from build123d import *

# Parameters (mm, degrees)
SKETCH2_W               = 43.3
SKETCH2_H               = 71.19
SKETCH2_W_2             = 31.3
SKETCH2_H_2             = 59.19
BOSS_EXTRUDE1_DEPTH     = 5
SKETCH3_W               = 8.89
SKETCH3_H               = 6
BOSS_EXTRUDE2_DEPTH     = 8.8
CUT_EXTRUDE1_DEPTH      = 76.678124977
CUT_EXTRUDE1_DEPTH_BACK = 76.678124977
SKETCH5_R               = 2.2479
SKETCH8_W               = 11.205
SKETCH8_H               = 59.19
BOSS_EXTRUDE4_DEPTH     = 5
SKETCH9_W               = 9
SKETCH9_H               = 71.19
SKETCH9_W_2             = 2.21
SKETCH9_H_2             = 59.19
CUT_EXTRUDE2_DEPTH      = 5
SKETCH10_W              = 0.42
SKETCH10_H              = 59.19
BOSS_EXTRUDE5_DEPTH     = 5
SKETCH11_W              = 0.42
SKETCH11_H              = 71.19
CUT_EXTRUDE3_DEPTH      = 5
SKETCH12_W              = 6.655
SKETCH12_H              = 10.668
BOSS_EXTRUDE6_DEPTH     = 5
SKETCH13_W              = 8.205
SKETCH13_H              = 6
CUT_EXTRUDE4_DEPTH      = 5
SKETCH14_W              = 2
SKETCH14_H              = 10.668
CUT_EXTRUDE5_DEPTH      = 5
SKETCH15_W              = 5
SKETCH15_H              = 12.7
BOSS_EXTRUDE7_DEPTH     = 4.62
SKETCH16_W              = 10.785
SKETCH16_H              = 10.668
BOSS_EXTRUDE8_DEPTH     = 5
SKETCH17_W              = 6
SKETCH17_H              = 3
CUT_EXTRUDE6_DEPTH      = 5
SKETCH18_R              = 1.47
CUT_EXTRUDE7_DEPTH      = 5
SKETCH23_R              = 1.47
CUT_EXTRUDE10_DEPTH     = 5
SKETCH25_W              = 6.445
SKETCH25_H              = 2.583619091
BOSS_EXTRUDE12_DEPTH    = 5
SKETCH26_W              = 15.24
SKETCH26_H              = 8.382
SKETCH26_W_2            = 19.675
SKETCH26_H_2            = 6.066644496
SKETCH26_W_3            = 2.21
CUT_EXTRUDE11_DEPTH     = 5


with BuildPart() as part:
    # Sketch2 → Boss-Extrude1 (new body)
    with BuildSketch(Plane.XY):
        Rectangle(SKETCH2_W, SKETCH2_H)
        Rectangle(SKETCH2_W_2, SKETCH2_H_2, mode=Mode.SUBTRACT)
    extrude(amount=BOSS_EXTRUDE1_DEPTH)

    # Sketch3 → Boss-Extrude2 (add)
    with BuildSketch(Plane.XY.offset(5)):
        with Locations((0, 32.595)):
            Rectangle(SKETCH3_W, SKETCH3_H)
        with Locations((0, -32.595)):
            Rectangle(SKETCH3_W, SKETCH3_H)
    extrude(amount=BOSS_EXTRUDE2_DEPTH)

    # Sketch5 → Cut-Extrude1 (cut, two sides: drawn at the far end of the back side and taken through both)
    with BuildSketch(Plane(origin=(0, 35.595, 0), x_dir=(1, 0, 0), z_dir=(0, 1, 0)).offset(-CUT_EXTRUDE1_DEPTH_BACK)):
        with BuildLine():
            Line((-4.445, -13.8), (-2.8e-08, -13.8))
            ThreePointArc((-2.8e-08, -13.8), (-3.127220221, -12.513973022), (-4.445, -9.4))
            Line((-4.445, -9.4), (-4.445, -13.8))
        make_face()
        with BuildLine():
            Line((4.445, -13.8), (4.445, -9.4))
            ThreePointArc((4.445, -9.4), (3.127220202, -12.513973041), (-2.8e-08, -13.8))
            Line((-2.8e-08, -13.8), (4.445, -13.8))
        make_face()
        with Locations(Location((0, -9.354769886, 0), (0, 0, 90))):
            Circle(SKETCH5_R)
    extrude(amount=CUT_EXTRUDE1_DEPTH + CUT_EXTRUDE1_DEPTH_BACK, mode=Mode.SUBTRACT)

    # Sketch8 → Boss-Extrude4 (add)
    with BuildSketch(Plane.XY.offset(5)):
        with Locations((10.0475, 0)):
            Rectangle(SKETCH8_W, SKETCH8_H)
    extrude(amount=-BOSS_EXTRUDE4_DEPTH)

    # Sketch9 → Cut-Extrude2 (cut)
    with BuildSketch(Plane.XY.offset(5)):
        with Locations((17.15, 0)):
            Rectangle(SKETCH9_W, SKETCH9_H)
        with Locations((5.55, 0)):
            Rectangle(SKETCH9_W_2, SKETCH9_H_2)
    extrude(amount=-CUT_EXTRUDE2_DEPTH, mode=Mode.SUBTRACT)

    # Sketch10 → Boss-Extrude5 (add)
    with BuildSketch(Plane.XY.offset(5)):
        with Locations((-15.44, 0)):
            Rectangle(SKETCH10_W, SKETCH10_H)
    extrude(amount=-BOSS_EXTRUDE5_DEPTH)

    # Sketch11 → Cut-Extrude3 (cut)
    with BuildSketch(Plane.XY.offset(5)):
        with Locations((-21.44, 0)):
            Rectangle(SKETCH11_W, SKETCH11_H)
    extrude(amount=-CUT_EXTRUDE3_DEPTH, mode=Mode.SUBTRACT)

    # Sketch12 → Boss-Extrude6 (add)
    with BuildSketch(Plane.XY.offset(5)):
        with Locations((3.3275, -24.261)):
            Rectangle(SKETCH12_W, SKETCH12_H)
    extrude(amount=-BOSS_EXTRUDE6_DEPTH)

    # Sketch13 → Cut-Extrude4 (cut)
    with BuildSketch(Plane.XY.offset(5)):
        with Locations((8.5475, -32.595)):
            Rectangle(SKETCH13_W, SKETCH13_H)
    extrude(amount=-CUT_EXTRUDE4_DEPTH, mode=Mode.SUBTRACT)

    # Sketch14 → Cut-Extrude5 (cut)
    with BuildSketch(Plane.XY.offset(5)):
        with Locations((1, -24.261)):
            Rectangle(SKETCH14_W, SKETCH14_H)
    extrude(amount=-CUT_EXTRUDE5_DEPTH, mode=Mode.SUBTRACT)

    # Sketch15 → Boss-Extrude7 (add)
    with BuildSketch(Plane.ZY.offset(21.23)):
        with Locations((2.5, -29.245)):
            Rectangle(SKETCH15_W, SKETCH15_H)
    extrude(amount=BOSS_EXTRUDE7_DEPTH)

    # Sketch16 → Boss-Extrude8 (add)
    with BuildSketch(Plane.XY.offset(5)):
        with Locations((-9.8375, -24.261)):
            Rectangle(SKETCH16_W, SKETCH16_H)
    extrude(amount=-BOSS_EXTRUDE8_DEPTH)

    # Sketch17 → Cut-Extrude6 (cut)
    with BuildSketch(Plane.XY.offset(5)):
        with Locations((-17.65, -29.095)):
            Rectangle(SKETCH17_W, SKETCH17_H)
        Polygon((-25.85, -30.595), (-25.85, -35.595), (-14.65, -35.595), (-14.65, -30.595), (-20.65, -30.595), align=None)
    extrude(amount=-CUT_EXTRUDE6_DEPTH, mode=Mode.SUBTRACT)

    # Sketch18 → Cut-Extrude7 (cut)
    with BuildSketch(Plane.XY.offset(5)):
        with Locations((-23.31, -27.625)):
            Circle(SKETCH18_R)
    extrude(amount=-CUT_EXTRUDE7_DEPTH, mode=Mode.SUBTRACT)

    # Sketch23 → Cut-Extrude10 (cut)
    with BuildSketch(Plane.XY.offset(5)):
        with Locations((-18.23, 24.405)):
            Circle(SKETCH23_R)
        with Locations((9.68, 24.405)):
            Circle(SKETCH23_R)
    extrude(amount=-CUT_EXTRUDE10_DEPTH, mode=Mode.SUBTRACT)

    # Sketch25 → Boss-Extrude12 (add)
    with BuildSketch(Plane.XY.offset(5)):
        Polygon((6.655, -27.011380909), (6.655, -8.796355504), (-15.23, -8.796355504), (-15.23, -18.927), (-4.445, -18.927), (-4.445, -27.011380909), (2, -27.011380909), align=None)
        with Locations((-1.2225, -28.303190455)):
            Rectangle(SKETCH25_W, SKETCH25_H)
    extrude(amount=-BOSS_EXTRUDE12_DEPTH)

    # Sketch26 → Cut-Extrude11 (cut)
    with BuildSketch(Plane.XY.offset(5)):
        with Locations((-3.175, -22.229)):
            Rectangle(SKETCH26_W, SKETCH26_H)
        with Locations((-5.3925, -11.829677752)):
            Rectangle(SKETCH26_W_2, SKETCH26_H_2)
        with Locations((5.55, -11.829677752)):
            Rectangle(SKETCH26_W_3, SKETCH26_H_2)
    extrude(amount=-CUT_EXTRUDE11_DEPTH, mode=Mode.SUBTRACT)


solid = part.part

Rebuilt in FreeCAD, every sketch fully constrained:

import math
import FreeCAD as App
import Part
import Sketcher
from FreeCAD import Vector

doc = App.newDocument("Part")
body = doc.addObject("PartDesign::Body", "Body")

# Sketch on XY plane
sketch1 = doc.addObject("Sketcher::SketchObject", "Sketch")
body.addObject(sketch1)
sketch1.AttachmentSupport = (doc.XY_Plane, [""])
sketch1.MapMode = "FlatFace"
sketch1.addGeometry(Part.LineSegment(Vector(-21.65, 35.595, 0), Vector(-21.65, -35.595, 0)), False)
sketch1.addGeometry(Part.LineSegment(Vector(-21.65, -35.595, 0), Vector(21.65, -35.595, 0)), False)
sketch1.addGeometry(Part.LineSegment(Vector(21.65, -35.595, 0), Vector(21.65, 35.595, 0)), False)
sketch1.addGeometry(Part.LineSegment(Vector(21.65, 35.595, 0), Vector(-21.65, 35.595, 0)), False)
sketch1.addGeometry(Part.LineSegment(Vector(15.65, -29.595, 0), Vector(-15.65, -29.595, 0)), False)
sketch1.addGeometry(Part.LineSegment(Vector(-15.65, -29.595, 0), Vector(-15.65, 29.595, 0)), False)
sketch1.addGeometry(Part.LineSegment(Vector(-15.65, 29.595, 0), Vector(15.65, 29.595, 0)), False)
sketch1.addGeometry(Part.LineSegment(Vector(15.65, 29.595, 0), Vector(15.65, -29.595, 0)), False)
sketch1.addConstraint(Sketcher.Constraint("Coincident", 0, 2, 1, 1))
sketch1.addConstraint(Sketcher.Constraint("Coincident", 1, 2, 2, 1))
sketch1.addConstraint(Sketcher.Constraint("Coincident", 2, 2, 3, 1))
sketch1.addConstraint(Sketcher.Constraint("Coincident", 3, 2, 0, 1))
sketch1.addConstraint(Sketcher.Constraint("Coincident", 4, 2, 5, 1))
sketch1.addConstraint(Sketcher.Constraint("Coincident", 5, 2, 6, 1))
sketch1.addConstraint(Sketcher.Constraint("Coincident", 6, 2, 7, 1))
sketch1.addConstraint(Sketcher.Constraint("Coincident", 7, 2, 4, 1))
sketch1.addConstraint(Sketcher.Constraint("Vertical", 0))
sketch1.addConstraint(Sketcher.Constraint("Horizontal", 1))
sketch1.addConstraint(Sketcher.Constraint("Vertical", 2))
sketch1.addConstraint(Sketcher.Constraint("Horizontal", 3))
sketch1.addConstraint(Sketcher.Constraint("Horizontal", 4))
sketch1.addConstraint(Sketcher.Constraint("Vertical", 5))
sketch1.addConstraint(Sketcher.Constraint("Horizontal", 6))
sketch1.addConstraint(Sketcher.Constraint("Vertical", 7))
sketch1.addConstraint(Sketcher.Constraint("Symmetric", 0, 2, 2, 2, -1, 1))
sketch1.addConstraint(Sketcher.Constraint("Symmetric", 4, 2, 6, 2, -1, 1))
sketch1.addConstraint(Sketcher.Constraint("DistanceX", 1, 1, 1, 2, 43.3))
sketch1.addConstraint(Sketcher.Constraint("DistanceX", 4, 2, 4, 1, 31.3))
sketch1.addConstraint(Sketcher.Constraint("DistanceY", 0, 2, 4, 2, 6.0))
sketch1.addConstraint(Sketcher.Constraint("DistanceY", 0, 2, 0, 1, 71.19))
pad1 = doc.addObject("PartDesign::Pad", "Pad")
body.addObject(pad1)
pad1.Profile = sketch1
pad1.Length = 5

# Sketch on XY plane
sketch2 = doc.addObject("Sketcher::SketchObject", "Sketch001")
body.addObject(sketch2)
sketch2.AttachmentSupport = (doc.XY_Plane, [""])
sketch2.MapMode = "FlatFace"
sketch2.AttachmentOffset = App.Placement(Vector(0, 0, 5), App.Rotation())
sketch2.addGeometry(Part.LineSegment(Vector(-4.445, 35.595, 0), Vector(-4.445, 29.595, 0)), False)
sketch2.addGeometry(Part.LineSegment(Vector(-4.445, 29.595, 0), Vector(4.445, 29.595, 0)), False)
sketch2.addGeometry(Part.LineSegment(Vector(4.445, 29.595, 0), Vector(4.445, 35.595, 0)), False)
sketch2.addGeometry(Part.LineSegment(Vector(4.445, 35.595, 0), Vector(-4.445, 35.595, 0)), False)
sketch2.addGeometry(Part.LineSegment(Vector(-4.445, -29.595, 0), Vector(-4.445, -35.595, 0)), False)
sketch2.addGeometry(Part.LineSegment(Vector(-4.445, -35.595, 0), Vector(4.445, -35.595, 0)), False)
sketch2.addGeometry(Part.LineSegment(Vector(4.445, -35.595, 0), Vector(4.445, -29.595, 0)), False)
sketch2.addGeometry(Part.LineSegment(Vector(4.445, -29.595, 0), Vector(-4.445, -29.595, 0)), False)
sketch2.addConstraint(Sketcher.Constraint("Coincident", 0, 2, 1, 1))
sketch2.addConstraint(Sketcher.Constraint("Coincident", 1, 2, 2, 1))
sketch2.addConstraint(Sketcher.Constraint("Coincident", 2, 2, 3, 1))
sketch2.addConstraint(Sketcher.Constraint("Coincident", 3, 2, 0, 1))
sketch2.addConstraint(Sketcher.Constraint("Coincident", 4, 2, 5, 1))
sketch2.addConstraint(Sketcher.Constraint("Coincident", 5, 2, 6, 1))
sketch2.addConstraint(Sketcher.Constraint("Coincident", 6, 2, 7, 1))
sketch2.addConstraint(Sketcher.Constraint("Coincident", 7, 2, 4, 1))
sketch2.addConstraint(Sketcher.Constraint("Vertical", 0))
sketch2.addConstraint(Sketcher.Constraint("Horizontal", 1))
sketch2.addConstraint(Sketcher.Constraint("Vertical", 2))
sketch2.addConstraint(Sketcher.Constraint("Horizontal", 3))
sketch2.addConstraint(Sketcher.Constraint("Vertical", 4))
sketch2.addConstraint(Sketcher.Constraint("Horizontal", 5))
sketch2.addConstraint(Sketcher.Constraint("Vertical", 6))
sketch2.addConstraint(Sketcher.Constraint("Horizontal", 7))
sketch2.addConstraint(Sketcher.Constraint("Symmetric", 2, 2, 4, 2, -1, 1))
sketch2.addConstraint(Sketcher.Constraint("Symmetric", 0, 2, 6, 2, -1, 1))
sketch2.addConstraint(Sketcher.Constraint("Vertical", 3, 2, 4, 2))
sketch2.addConstraint(Sketcher.Constraint("DistanceY", 0, 2, 0, 1, 6.0))
sketch2.addConstraint(Sketcher.Constraint("DistanceX", 1, 1, 1, 2, 8.89))
sketch2.addConstraint(Sketcher.Constraint("DistanceY", 4, 2, 0, 2, 65.19))
pad2 = doc.addObject("PartDesign::Pad", "Pad001")
body.addObject(pad2)
pad2.Profile = sketch2
pad2.Length = 8.8

# Sketch on XZ plane
sketch3 = doc.addObject("Sketcher::SketchObject", "Sketch002")
body.addObject(sketch3)
sketch3.AttachmentSupport = (doc.XZ_Plane, [""])
sketch3.MapMode = "FlatFace"
sketch3.AttachmentOffset = App.Placement(Vector(0, 0, -35.595), App.Rotation())
sketch3.addGeometry(Part.LineSegment(Vector(-4.445, 13.8, 0), Vector(0, 13.8, 0)), False)
sketch3.addGeometry(Part.ArcOfCircle(Part.Circle(Vector(0, 9.35477, 0), Vector(0, 0, 1), 4.44523), math.radians(90), math.radians(179.417007)), False)
sketch3.addGeometry(Part.LineSegment(Vector(-4.445, 9.4, 0), Vector(-4.445, 13.8, 0)), False)
sketch3.addGeometry(Part.LineSegment(Vector(4.445, 13.8, 0), Vector(4.445, 9.4, 0)), False)
sketch3.addGeometry(Part.ArcOfCircle(Part.Circle(Vector(0, 9.35477, 0), Vector(0, 0, 1), 4.44523), math.radians(0.582993), math.radians(90)), False)
sketch3.addGeometry(Part.LineSegment(Vector(0, 13.8, 0), Vector(4.445, 13.8, 0)), False)
sketch3.addGeometry(Part.Circle(Vector(0, 9.35477, 0), Vector(0, 0, 1), 2.2479), False)
sketch3.addConstraint(Sketcher.Constraint("Tangent", 0, 2, 1, 1))
sketch3.addConstraint(Sketcher.Constraint("Coincident", 1, 2, 2, 1))
sketch3.addConstraint(Sketcher.Constraint("Coincident", 2, 2, 0, 1))
sketch3.addConstraint(Sketcher.Constraint("Coincident", 3, 2, 4, 1))
sketch3.addConstraint(Sketcher.Constraint("Tangent", 4, 2, 5, 1))
sketch3.addConstraint(Sketcher.Constraint("Coincident", 5, 2, 3, 1))
sketch3.addConstraint(Sketcher.Constraint("Horizontal", 0))
sketch3.addConstraint(Sketcher.Constraint("Vertical", 2))
sketch3.addConstraint(Sketcher.Constraint("Vertical", 3))
sketch3.addConstraint(Sketcher.Constraint("Horizontal", 5))
sketch3.addConstraint(Sketcher.Constraint("Coincident", 4, 3, 1, 3))
sketch3.addConstraint(Sketcher.Constraint("Coincident", 6, 3, 1, 3))
sketch3.addConstraint(Sketcher.Constraint("Equal", 1, 4))
sketch3.addConstraint(Sketcher.Constraint("Symmetric", 1, 2, 3, 2, -2))
sketch3.addConstraint(Sketcher.Constraint("DistanceY", 2, 1, 2, 2, 4.4))
sketch3.addConstraint(Sketcher.Constraint("Diameter", 6, 4.4958))
sketch3.addConstraint(Sketcher.Constraint("DistanceY", -1, 1, 0, 2, 13.8))
sketch3.addConstraint(Sketcher.Constraint("DistanceX", 0, 1, 0, 2, 4.445))
pocket1 = doc.addObject("PartDesign::Pocket", "Pocket")
body.addObject(pocket1)
pocket1.Profile = sketch3
pocket1.Type = "ThroughAll"
pocket1.Midplane = True

# Sketch on XY plane
sketch4 = doc.addObject("Sketcher::SketchObject", "Sketch003")
body.addObject(sketch4)
sketch4.AttachmentSupport = (doc.XY_Plane, [""])
sketch4.MapMode = "FlatFace"
sketch4.AttachmentOffset = App.Placement(Vector(0, 0, 5), App.Rotation())
sketch4.addGeometry(Part.LineSegment(Vector(4.445, 29.595, 0), Vector(4.445, -29.595, 0)), False)
sketch4.addGeometry(Part.LineSegment(Vector(4.445, -29.595, 0), Vector(15.65, -29.595, 0)), False)
sketch4.addGeometry(Part.LineSegment(Vector(15.65, -29.595, 0), Vector(15.65, 29.595, 0)), False)
sketch4.addGeometry(Part.LineSegment(Vector(15.65, 29.595, 0), Vector(4.445, 29.595, 0)), False)
sketch4.addConstraint(Sketcher.Constraint("Coincident", 0, 2, 1, 1))
sketch4.addConstraint(Sketcher.Constraint("Coincident", 1, 2, 2, 1))
sketch4.addConstraint(Sketcher.Constraint("Coincident", 2, 2, 3, 1))
sketch4.addConstraint(Sketcher.Constraint("Coincident", 3, 2, 0, 1))
sketch4.addConstraint(Sketcher.Constraint("Vertical", 0))
sketch4.addConstraint(Sketcher.Constraint("Horizontal", 1))
sketch4.addConstraint(Sketcher.Constraint("Vertical", 2))
sketch4.addConstraint(Sketcher.Constraint("Horizontal", 3))
sketch4.addConstraint(Sketcher.Constraint("DistanceY", 0, 2, 0, 1, 59.19))
sketch4.addConstraint(Sketcher.Constraint("DistanceX", 1, 1, 1, 2, 11.205))
sketch4.addConstraint(Sketcher.Constraint("DistanceX", -1, 1, 1, 2, 15.65))
sketch4.addConstraint(Sketcher.Constraint("DistanceY", 0, 2, -1, 1, 29.595))
pad3 = doc.addObject("PartDesign::Pad", "Pad002")
body.addObject(pad3)
pad3.Profile = sketch4
pad3.Length = 5
pad3.Reversed = True

# Sketch on XY plane
sketch5 = doc.addObject("Sketcher::SketchObject", "Sketch004")
body.addObject(sketch5)
sketch5.AttachmentSupport = (doc.XY_Plane, [""])
sketch5.MapMode = "FlatFace"
sketch5.AttachmentOffset = App.Placement(Vector(0, 0, 5), App.Rotation())
sketch5.addGeometry(Part.LineSegment(Vector(12.65, 35.595, 0), Vector(12.65, -35.595, 0)), False)
sketch5.addGeometry(Part.LineSegment(Vector(12.65, -35.595, 0), Vector(21.65, -35.595, 0)), False)
sketch5.addGeometry(Part.LineSegment(Vector(21.65, -35.595, 0), Vector(21.65, 35.595, 0)), False)
sketch5.addGeometry(Part.LineSegment(Vector(21.65, 35.595, 0), Vector(12.65, 35.595, 0)), False)
sketch5.addGeometry(Part.LineSegment(Vector(4.445, 29.595, 0), Vector(4.445, -29.595, 0)), False)
sketch5.addGeometry(Part.LineSegment(Vector(4.445, -29.595, 0), Vector(6.655, -29.595, 0)), False)
sketch5.addGeometry(Part.LineSegment(Vector(6.655, -29.595, 0), Vector(6.655, 29.595, 0)), False)
sketch5.addGeometry(Part.LineSegment(Vector(6.655, 29.595, 0), Vector(4.445, 29.595, 0)), False)
sketch5.addConstraint(Sketcher.Constraint("Coincident", 0, 2, 1, 1))
sketch5.addConstraint(Sketcher.Constraint("Coincident", 1, 2, 2, 1))
sketch5.addConstraint(Sketcher.Constraint("Coincident", 2, 2, 3, 1))
sketch5.addConstraint(Sketcher.Constraint("Coincident", 3, 2, 0, 1))
sketch5.addConstraint(Sketcher.Constraint("Coincident", 4, 2, 5, 1))
sketch5.addConstraint(Sketcher.Constraint("Coincident", 5, 2, 6, 1))
sketch5.addConstraint(Sketcher.Constraint("Coincident", 6, 2, 7, 1))
sketch5.addConstraint(Sketcher.Constraint("Coincident", 7, 2, 4, 1))
sketch5.addConstraint(Sketcher.Constraint("Vertical", 0))
sketch5.addConstraint(Sketcher.Constraint("Horizontal", 1))
sketch5.addConstraint(Sketcher.Constraint("Vertical", 2))
sketch5.addConstraint(Sketcher.Constraint("Horizontal", 3))
sketch5.addConstraint(Sketcher.Constraint("Vertical", 4))
sketch5.addConstraint(Sketcher.Constraint("Horizontal", 5))
sketch5.addConstraint(Sketcher.Constraint("Vertical", 6))
sketch5.addConstraint(Sketcher.Constraint("Horizontal", 7))
sketch5.addConstraint(Sketcher.Constraint("DistanceX", 1, 1, 1, 2, 9.0))
sketch5.addConstraint(Sketcher.Constraint("DistanceY", 0, 2, 4, 2, 6.0))
sketch5.addConstraint(Sketcher.Constraint("DistanceY", 6, 2, 3, 2, 6.0))
sketch5.addConstraint(Sketcher.Constraint("DistanceX", 5, 1, 5, 2, 2.21))
sketch5.addConstraint(Sketcher.Constraint("DistanceY", 0, 2, 0, 1, 71.19))
sketch5.addConstraint(Sketcher.Constraint("DistanceX", -1, 1, 0, 2, 12.65))
sketch5.addConstraint(Sketcher.Constraint("DistanceY", 0, 2, -1, 1, 35.595))
sketch5.addConstraint(Sketcher.Constraint("DistanceX", -1, 1, 4, 2, 4.445))
pocket2 = doc.addObject("PartDesign::Pocket", "Pocket001")
body.addObject(pocket2)
pocket2.Profile = sketch5
pocket2.Length = 5

# Sketch on XY plane
sketch6 = doc.addObject("Sketcher::SketchObject", "Sketch005")
body.addObject(sketch6)
sketch6.AttachmentSupport = (doc.XY_Plane, [""])
sketch6.MapMode = "FlatFace"
sketch6.AttachmentOffset = App.Placement(Vector(0, 0, 5), App.Rotation())
sketch6.addGeometry(Part.LineSegment(Vector(-15.65, 29.595, 0), Vector(-15.65, -29.595, 0)), False)
sketch6.addGeometry(Part.LineSegment(Vector(-15.65, -29.595, 0), Vector(-15.23, -29.595, 0)), False)
sketch6.addGeometry(Part.LineSegment(Vector(-15.23, -29.595, 0), Vector(-15.23, 29.595, 0)), False)
sketch6.addGeometry(Part.LineSegment(Vector(-15.23, 29.595, 0), Vector(-15.65, 29.595, 0)), False)
sketch6.addConstraint(Sketcher.Constraint("Coincident", 0, 2, 1, 1))
sketch6.addConstraint(Sketcher.Constraint("Coincident", 1, 2, 2, 1))
sketch6.addConstraint(Sketcher.Constraint("Coincident", 2, 2, 3, 1))
sketch6.addConstraint(Sketcher.Constraint("Coincident", 3, 2, 0, 1))
sketch6.addConstraint(Sketcher.Constraint("Vertical", 0))
sketch6.addConstraint(Sketcher.Constraint("Horizontal", 1))
sketch6.addConstraint(Sketcher.Constraint("Vertical", 2))
sketch6.addConstraint(Sketcher.Constraint("Horizontal", 3))
sketch6.addConstraint(Sketcher.Constraint("DistanceX", 1, 1, 1, 2, 0.42))
sketch6.addConstraint(Sketcher.Constraint("DistanceY", 0, 2, 0, 1, 59.19))
sketch6.addConstraint(Sketcher.Constraint("DistanceX", 0, 2, -1, 1, 15.65))
sketch6.addConstraint(Sketcher.Constraint("DistanceY", 0, 2, -1, 1, 29.595))
pad4 = doc.addObject("PartDesign::Pad", "Pad003")
body.addObject(pad4)
pad4.Profile = sketch6
pad4.Length = 5
pad4.Reversed = True

# Sketch on XY plane
sketch7 = doc.addObject("Sketcher::SketchObject", "Sketch006")
body.addObject(sketch7)
sketch7.AttachmentSupport = (doc.XY_Plane, [""])
sketch7.MapMode = "FlatFace"
sketch7.AttachmentOffset = App.Placement(Vector(0, 0, 5), App.Rotation())
sketch7.addGeometry(Part.LineSegment(Vector(-21.65, 35.595, 0), Vector(-21.65, -35.595, 0)), False)
sketch7.addGeometry(Part.LineSegment(Vector(-21.65, -35.595, 0), Vector(-21.23, -35.595, 0)), False)
sketch7.addGeometry(Part.LineSegment(Vector(-21.23, -35.595, 0), Vector(-21.23, 35.595, 0)), False)
sketch7.addGeometry(Part.LineSegment(Vector(-21.23, 35.595, 0), Vector(-21.65, 35.595, 0)), False)
sketch7.addConstraint(Sketcher.Constraint("Coincident", 0, 2, 1, 1))
sketch7.addConstraint(Sketcher.Constraint("Coincident", 1, 2, 2, 1))
sketch7.addConstraint(Sketcher.Constraint("Coincident", 2, 2, 3, 1))
sketch7.addConstraint(Sketcher.Constraint("Coincident", 3, 2, 0, 1))
sketch7.addConstraint(Sketcher.Constraint("Vertical", 0))
sketch7.addConstraint(Sketcher.Constraint("Horizontal", 1))
sketch7.addConstraint(Sketcher.Constraint("Vertical", 2))
sketch7.addConstraint(Sketcher.Constraint("Horizontal", 3))
sketch7.addConstraint(Sketcher.Constraint("DistanceX", 1, 1, 1, 2, 0.42))
sketch7.addConstraint(Sketcher.Constraint("DistanceY", 0, 2, 0, 1, 71.19))
sketch7.addConstraint(Sketcher.Constraint("DistanceX", 0, 2, -1, 1, 21.65))
sketch7.addConstraint(Sketcher.Constraint("DistanceY", 0, 2, -1, 1, 35.595))
pocket3 = doc.addObject("PartDesign::Pocket", "Pocket002")
body.addObject(pocket3)
pocket3.Profile = sketch7
pocket3.Length = 5

# Sketch on XY plane
sketch8 = doc.addObject("Sketcher::SketchObject", "Sketch007")
body.addObject(sketch8)
sketch8.AttachmentSupport = (doc.XY_Plane, [""])
sketch8.MapMode = "FlatFace"
sketch8.AttachmentOffset = App.Placement(Vector(0, 0, 5), App.Rotation())
sketch8.addGeometry(Part.LineSegment(Vector(0, -18.927, 0), Vector(0, -29.595, 0)), False)
sketch8.addGeometry(Part.LineSegment(Vector(0, -29.595, 0), Vector(6.655, -29.595, 0)), False)
sketch8.addGeometry(Part.LineSegment(Vector(6.655, -29.595, 0), Vector(6.655, -18.927, 0)), False)
sketch8.addGeometry(Part.LineSegment(Vector(6.655, -18.927, 0), Vector(0, -18.927, 0)), False)
sketch8.addConstraint(Sketcher.Constraint("Coincident", 0, 2, 1, 1))
sketch8.addConstraint(Sketcher.Constraint("Coincident", 1, 2, 2, 1))
sketch8.addConstraint(Sketcher.Constraint("Coincident", 2, 2, 3, 1))
sketch8.addConstraint(Sketcher.Constraint("Coincident", 3, 2, 0, 1))
sketch8.addConstraint(Sketcher.Constraint("Vertical", 0))
sketch8.addConstraint(Sketcher.Constraint("Horizontal", 1))
sketch8.addConstraint(Sketcher.Constraint("Vertical", 2))
sketch8.addConstraint(Sketcher.Constraint("Horizontal", 3))
sketch8.addConstraint(Sketcher.Constraint("PointOnObject", 0, 2, -2))
sketch8.addConstraint(Sketcher.Constraint("DistanceX", 1, 1, 1, 2, 6.655))
sketch8.addConstraint(Sketcher.Constraint("DistanceY", 0, 2, 0, 1, 10.668))
sketch8.addConstraint(Sketcher.Constraint("DistanceY", 0, 2, -1, 1, 29.595))
pad5 = doc.addObject("PartDesign::Pad", "Pad004")
body.addObject(pad5)
pad5.Profile = sketch8
pad5.Length = 5
pad5.Reversed = True

# Sketch on XY plane
sketch9 = doc.addObject("Sketcher::SketchObject", "Sketch008")
body.addObject(sketch9)
sketch9.AttachmentSupport = (doc.XY_Plane, [""])
sketch9.MapMode = "FlatFace"
sketch9.AttachmentOffset = App.Placement(Vector(0, 0, 5), App.Rotation())
sketch9.addGeometry(Part.LineSegment(Vector(4.445, -29.595, 0), Vector(4.445, -35.595, 0)), False)
sketch9.addGeometry(Part.LineSegment(Vector(4.445, -35.595, 0), Vector(12.65, -35.595, 0)), False)
sketch9.addGeometry(Part.LineSegment(Vector(12.65, -35.595, 0), Vector(12.65, -29.595, 0)), False)
sketch9.addGeometry(Part.LineSegment(Vector(12.65, -29.595, 0), Vector(4.445, -29.595, 0)), False)
sketch9.addConstraint(Sketcher.Constraint("Coincident", 0, 2, 1, 1))
sketch9.addConstraint(Sketcher.Constraint("Coincident", 1, 2, 2, 1))
sketch9.addConstraint(Sketcher.Constraint("Coincident", 2, 2, 3, 1))
sketch9.addConstraint(Sketcher.Constraint("Coincident", 3, 2, 0, 1))
sketch9.addConstraint(Sketcher.Constraint("Vertical", 0))
sketch9.addConstraint(Sketcher.Constraint("Horizontal", 1))
sketch9.addConstraint(Sketcher.Constraint("Vertical", 2))
sketch9.addConstraint(Sketcher.Constraint("Horizontal", 3))
sketch9.addConstraint(Sketcher.Constraint("DistanceY", 0, 2, 0, 1, 6.0))
sketch9.addConstraint(Sketcher.Constraint("DistanceX", 1, 1, 1, 2, 8.205))
sketch9.addConstraint(Sketcher.Constraint("DistanceX", -1, 1, 1, 2, 12.65))
sketch9.addConstraint(Sketcher.Constraint("DistanceY", 0, 2, -1, 1, 35.595))
pocket4 = doc.addObject("PartDesign::Pocket", "Pocket003")
body.addObject(pocket4)
pocket4.Profile = sketch9
pocket4.Length = 5

# Sketch on XY plane
sketch10 = doc.addObject("Sketcher::SketchObject", "Sketch009")
body.addObject(sketch10)
sketch10.AttachmentSupport = (doc.XY_Plane, [""])
sketch10.MapMode = "FlatFace"
sketch10.AttachmentOffset = App.Placement(Vector(0, 0, 5), App.Rotation())
sketch10.addGeometry(Part.LineSegment(Vector(0, -18.927, 0), Vector(0, -29.595, 0)), False)
sketch10.addGeometry(Part.LineSegment(Vector(0, -29.595, 0), Vector(2, -29.595, 0)), False)
sketch10.addGeometry(Part.LineSegment(Vector(2, -29.595, 0), Vector(2, -18.927, 0)), False)
sketch10.addGeometry(Part.LineSegment(Vector(2, -18.927, 0), Vector(0, -18.927, 0)), False)
sketch10.addConstraint(Sketcher.Constraint("Coincident", 0, 2, 1, 1))
sketch10.addConstraint(Sketcher.Constraint("Coincident", 1, 2, 2, 1))
sketch10.addConstraint(Sketcher.Constraint("Coincident", 2, 2, 3, 1))
sketch10.addConstraint(Sketcher.Constraint("Coincident", 3, 2, 0, 1))
sketch10.addConstraint(Sketcher.Constraint("Vertical", 0))
sketch10.addConstraint(Sketcher.Constraint("Horizontal", 1))
sketch10.addConstraint(Sketcher.Constraint("Vertical", 2))
sketch10.addConstraint(Sketcher.Constraint("Horizontal", 3))
sketch10.addConstraint(Sketcher.Constraint("PointOnObject", 0, 2, -2))
sketch10.addConstraint(Sketcher.Constraint("DistanceX", 1, 1, 1, 2, 2.0))
sketch10.addConstraint(Sketcher.Constraint("DistanceY", 0, 2, 0, 1, 10.668))
sketch10.addConstraint(Sketcher.Constraint("DistanceY", 0, 2, -1, 1, 29.595))
pocket5 = doc.addObject("PartDesign::Pocket", "Pocket004")
body.addObject(pocket5)
pocket5.Profile = sketch10
pocket5.Length = 5

# Sketch on YZ plane
sketch11 = doc.addObject("Sketcher::SketchObject", "Sketch010")
body.addObject(sketch11)
sketch11.AttachmentSupport = (doc.YZ_Plane, [""])
sketch11.MapMode = "FlatFace"
sketch11.AttachmentOffset = App.Placement(Vector(0, 0, -21.23), App.Rotation())
sketch11.addGeometry(Part.LineSegment(Vector(-22.895, 0, 0), Vector(-35.595, 0, 0)), False)
sketch11.addGeometry(Part.LineSegment(Vector(-35.595, 0, 0), Vector(-35.595, 5, 0)), False)
sketch11.addGeometry(Part.LineSegment(Vector(-35.595, 5, 0), Vector(-22.895, 5, 0)), False)
sketch11.addGeometry(Part.LineSegment(Vector(-22.895, 5, 0), Vector(-22.895, 0, 0)), False)
sketch11.addConstraint(Sketcher.Constraint("Coincident", 0, 2, 1, 1))
sketch11.addConstraint(Sketcher.Constraint("Coincident", 1, 2, 2, 1))
sketch11.addConstraint(Sketcher.Constraint("Coincident", 2, 2, 3, 1))
sketch11.addConstraint(Sketcher.Constraint("Coincident", 3, 2, 0, 1))
sketch11.addConstraint(Sketcher.Constraint("Horizontal", 0))
sketch11.addConstraint(Sketcher.Constraint("Vertical", 1))
sketch11.addConstraint(Sketcher.Constraint("Horizontal", 2))
sketch11.addConstraint(Sketcher.Constraint("Vertical", 3))
sketch11.addConstraint(Sketcher.Constraint("PointOnObject", 0, 2, -1))
sketch11.addConstraint(Sketcher.Constraint("DistanceY", 1, 1, 1, 2, 5.0))
sketch11.addConstraint(Sketcher.Constraint("DistanceX", 0, 2, 0, 1, 12.7))
sketch11.addConstraint(Sketcher.Constraint("DistanceX", 0, 2, -1, 1, 35.595))
pad6 = doc.addObject("PartDesign::Pad", "Pad005")
body.addObject(pad6)
pad6.Profile = sketch11
pad6.Length = 4.62
pad6.Reversed = True

# Sketch on XY plane
sketch12 = doc.addObject("Sketcher::SketchObject", "Sketch011")
body.addObject(sketch12)
sketch12.AttachmentSupport = (doc.XY_Plane, [""])
sketch12.MapMode = "FlatFace"
sketch12.AttachmentOffset = App.Placement(Vector(0, 0, 5), App.Rotation())
sketch12.addGeometry(Part.LineSegment(Vector(-15.23, -18.927, 0), Vector(-15.23, -29.595, 0)), False)
sketch12.addGeometry(Part.LineSegment(Vector(-15.23, -29.595, 0), Vector(-4.445, -29.595, 0)), False)
sketch12.addGeometry(Part.LineSegment(Vector(-4.445, -29.595, 0), Vector(-4.445, -18.927, 0)), False)
sketch12.addGeometry(Part.LineSegment(Vector(-4.445, -18.927, 0), Vector(-15.23, -18.927, 0)), False)
sketch12.addConstraint(Sketcher.Constraint("Coincident", 0, 2, 1, 1))
sketch12.addConstraint(Sketcher.Constraint("Coincident", 1, 2, 2, 1))
sketch12.addConstraint(Sketcher.Constraint("Coincident", 2, 2, 3, 1))
sketch12.addConstraint(Sketcher.Constraint("Coincident", 3, 2, 0, 1))
sketch12.addConstraint(Sketcher.Constraint("Vertical", 0))
sketch12.addConstraint(Sketcher.Constraint("Horizontal", 1))
sketch12.addConstraint(Sketcher.Constraint("Vertical", 2))
sketch12.addConstraint(Sketcher.Constraint("Horizontal", 3))
sketch12.addConstraint(Sketcher.Constraint("DistanceX", 1, 1, 1, 2, 10.785))
sketch12.addConstraint(Sketcher.Constraint("DistanceY", 0, 2, 0, 1, 10.668))
sketch12.addConstraint(Sketcher.Constraint("DistanceX", 0, 2, -1, 1, 15.23))
sketch12.addConstraint(Sketcher.Constraint("DistanceY", 0, 2, -1, 1, 29.595))
pad7 = doc.addObject("PartDesign::Pad", "Pad006")
body.addObject(pad7)
pad7.Profile = sketch12
pad7.Length = 5
pad7.Reversed = True

# Sketch on XY plane
sketch13 = doc.addObject("Sketcher::SketchObject", "Sketch012")
body.addObject(sketch13)
sketch13.AttachmentSupport = (doc.XY_Plane, [""])
sketch13.MapMode = "FlatFace"
sketch13.AttachmentOffset = App.Placement(Vector(0, 0, 5), App.Rotation())
sketch13.addGeometry(Part.LineSegment(Vector(-20.65, -27.595, 0), Vector(-20.65, -30.595, 0)), False)
sketch13.addGeometry(Part.LineSegment(Vector(-20.65, -30.595, 0), Vector(-25.85, -30.595, 0)), False)
sketch13.addGeometry(Part.LineSegment(Vector(-25.85, -30.595, 0), Vector(-25.85, -35.595, 0)), False)
sketch13.addGeometry(Part.LineSegment(Vector(-25.85, -35.595, 0), Vector(-14.65, -35.595, 0)), False)
sketch13.addGeometry(Part.LineSegment(Vector(-14.65, -35.595, 0), Vector(-14.65, -27.595, 0)), False)
sketch13.addGeometry(Part.LineSegment(Vector(-14.65, -27.595, 0), Vector(-20.65, -27.595, 0)), False)
sketch13.addConstraint(Sketcher.Constraint("Coincident", 0, 2, 1, 1))
sketch13.addConstraint(Sketcher.Constraint("Coincident", 1, 2, 2, 1))
sketch13.addConstraint(Sketcher.Constraint("Coincident", 2, 2, 3, 1))
sketch13.addConstraint(Sketcher.Constraint("Coincident", 3, 2, 4, 1))
sketch13.addConstraint(Sketcher.Constraint("Coincident", 4, 2, 5, 1))
sketch13.addConstraint(Sketcher.Constraint("Coincident", 5, 2, 0, 1))
sketch13.addConstraint(Sketcher.Constraint("Vertical", 0))
sketch13.addConstraint(Sketcher.Constraint("Horizontal", 1))
sketch13.addConstraint(Sketcher.Constraint("Vertical", 2))
sketch13.addConstraint(Sketcher.Constraint("Horizontal", 3))
sketch13.addConstraint(Sketcher.Constraint("Vertical", 4))
sketch13.addConstraint(Sketcher.Constraint("Horizontal", 5))
sketch13.addConstraint(Sketcher.Constraint("DistanceX", 5, 2, 5, 1, 6.0))
sketch13.addConstraint(Sketcher.Constraint("DistanceY", 0, 2, 0, 1, 3.0))
sketch13.addConstraint(Sketcher.Constraint("DistanceY", 2, 2, 2, 1, 5.0))
sketch13.addConstraint(Sketcher.Constraint("DistanceX", 1, 2, 1, 1, 5.2))
sketch13.addConstraint(Sketcher.Constraint("DistanceX", 0, 2, -1, 1, 20.65))
sketch13.addConstraint(Sketcher.Constraint("DistanceY", 0, 2, -1, 1, 30.595))
pocket6 = doc.addObject("PartDesign::Pocket", "Pocket005")
body.addObject(pocket6)
pocket6.Profile = sketch13
pocket6.Length = 5

# Sketch on XY plane
sketch14 = doc.addObject("Sketcher::SketchObject", "Sketch013")
body.addObject(sketch14)
sketch14.AttachmentSupport = (doc.XY_Plane, [""])
sketch14.MapMode = "FlatFace"
sketch14.AttachmentOffset = App.Placement(Vector(0, 0, 5), App.Rotation())
sketch14.addGeometry(Part.Circle(Vector(-23.31, -27.625, 0), Vector(0, 0, 1), 1.47), False)
sketch14.addConstraint(Sketcher.Constraint("Diameter", 0, 2.94))
sketch14.addConstraint(Sketcher.Constraint("DistanceX", 0, 3, -1, 1, 23.31))
sketch14.addConstraint(Sketcher.Constraint("DistanceY", 0, 3, -1, 1, 27.625))
pocket7 = doc.addObject("PartDesign::Pocket", "Pocket006")
body.addObject(pocket7)
pocket7.Profile = sketch14
pocket7.Length = 5

# Sketch on XY plane
sketch15 = doc.addObject("Sketcher::SketchObject", "Sketch014")
body.addObject(sketch15)
sketch15.AttachmentSupport = (doc.XY_Plane, [""])
sketch15.MapMode = "FlatFace"
sketch15.AttachmentOffset = App.Placement(Vector(0, 0, 5), App.Rotation())
sketch15.addGeometry(Part.Circle(Vector(-18.23, 24.405, 0), Vector(0, 0, 1), 1.47), False)
sketch15.addGeometry(Part.Circle(Vector(9.68, 24.405, 0), Vector(0, 0, 1), 1.47), False)
sketch15.addConstraint(Sketcher.Constraint("Equal", 0, 1))
sketch15.addConstraint(Sketcher.Constraint("Horizontal", 0, 3, 1, 3))
sketch15.addConstraint(Sketcher.Constraint("Diameter", 0, 2.94))
sketch15.addConstraint(Sketcher.Constraint("DistanceX", 0, 3, -1, 1, 18.23))
sketch15.addConstraint(Sketcher.Constraint("DistanceX", -1, 1, 1, 3, 9.68))
sketch15.addConstraint(Sketcher.Constraint("DistanceY", -1, 1, 0, 3, 24.405))
pocket8 = doc.addObject("PartDesign::Pocket", "Pocket007")
body.addObject(pocket8)
pocket8.Profile = sketch15
pocket8.Length = 5

# Sketch on XY plane
sketch16 = doc.addObject("Sketcher::SketchObject", "Sketch015")
body.addObject(sketch16)
sketch16.AttachmentSupport = (doc.XY_Plane, [""])
sketch16.MapMode = "FlatFace"
sketch16.AttachmentOffset = App.Placement(Vector(0, 0, 5), App.Rotation())
sketch16.addGeometry(Part.LineSegment(Vector(6.655, -27.011381, 0), Vector(6.655, -8.796356, 0)), False)
sketch16.addGeometry(Part.LineSegment(Vector(6.655, -8.796356, 0), Vector(-15.23, -8.796356, 0)), False)
sketch16.addGeometry(Part.LineSegment(Vector(-15.23, -8.796356, 0), Vector(-15.23, -18.927, 0)), False)
sketch16.addGeometry(Part.LineSegment(Vector(-15.23, -18.927, 0), Vector(-4.445, -18.927, 0)), False)
sketch16.addGeometry(Part.LineSegment(Vector(-4.445, -18.927, 0), Vector(-4.445, -29.595, 0)), False)
sketch16.addGeometry(Part.LineSegment(Vector(-4.445, -29.595, 0), Vector(2, -29.595, 0)), False)
sketch16.addGeometry(Part.LineSegment(Vector(2, -29.595, 0), Vector(2, -27.011381, 0)), False)
sketch16.addGeometry(Part.LineSegment(Vector(2, -27.011381, 0), Vector(6.655, -27.011381, 0)), False)
sketch16.addConstraint(Sketcher.Constraint("Coincident", 0, 2, 1, 1))
sketch16.addConstraint(Sketcher.Constraint("Coincident", 1, 2, 2, 1))
sketch16.addConstraint(Sketcher.Constraint("Coincident", 2, 2, 3, 1))
sketch16.addConstraint(Sketcher.Constraint("Coincident", 3, 2, 4, 1))
sketch16.addConstraint(Sketcher.Constraint("Coincident", 4, 2, 5, 1))
sketch16.addConstraint(Sketcher.Constraint("Coincident", 5, 2, 6, 1))
sketch16.addConstraint(Sketcher.Constraint("Coincident", 6, 2, 7, 1))
sketch16.addConstraint(Sketcher.Constraint("Coincident", 7, 2, 0, 1))
sketch16.addConstraint(Sketcher.Constraint("Vertical", 0))
sketch16.addConstraint(Sketcher.Constraint("Horizontal", 1))
sketch16.addConstraint(Sketcher.Constraint("Vertical", 2))
sketch16.addConstraint(Sketcher.Constraint("Horizontal", 3))
sketch16.addConstraint(Sketcher.Constraint("Vertical", 4))
sketch16.addConstraint(Sketcher.Constraint("Horizontal", 5))
sketch16.addConstraint(Sketcher.Constraint("Vertical", 6))
sketch16.addConstraint(Sketcher.Constraint("Horizontal", 7))
sketch16.addConstraint(Sketcher.Constraint("DistanceX", -1, 1, 5, 2, 2.0))
sketch16.addConstraint(Sketcher.Constraint("DistanceX", 3, 2, 0, 2, 11.1))
sketch16.addConstraint(Sketcher.Constraint("DistanceX", 1, 2, 1, 1, 21.885))
sketch16.addConstraint(Sketcher.Constraint("DistanceX", 5, 1, 5, 2, 6.445))
sketch16.addConstraint(Sketcher.Constraint("DistanceY", 4, 2, 4, 1, 10.668))
sketch16.addConstraint(Sketcher.Constraint("DistanceY", 2, 2, -1, 1, 18.927))
sketch16.addConstraint(Sketcher.Constraint("DistanceY", 6, 1, 6, 2, 2.583619))
sketch16.addConstraint(Sketcher.Constraint("DistanceY", 0, 1, 0, 2, 18.215025))
pad8 = doc.addObject("PartDesign::Pad", "Pad007")
body.addObject(pad8)
pad8.Profile = sketch16
pad8.Length = 5
pad8.Reversed = True

# Sketch on XY plane
sketch17 = doc.addObject("Sketcher::SketchObject", "Sketch016")
body.addObject(sketch17)
sketch17.AttachmentSupport = (doc.XY_Plane, [""])
sketch17.MapMode = "FlatFace"
sketch17.AttachmentOffset = App.Placement(Vector(0, 0, 5), App.Rotation())
sketch17.addGeometry(Part.LineSegment(Vector(-10.795, -18.038, 0), Vector(-10.795, -26.42, 0)), False)
sketch17.addGeometry(Part.LineSegment(Vector(-10.795, -26.42, 0), Vector(4.445, -26.42, 0)), False)
sketch17.addGeometry(Part.LineSegment(Vector(4.445, -26.42, 0), Vector(4.445, -18.038, 0)), False)
sketch17.addGeometry(Part.LineSegment(Vector(4.445, -18.038, 0), Vector(-10.795, -18.038, 0)), False)
sketch17.addGeometry(Part.LineSegment(Vector(-15.23, -8.796356, 0), Vector(-15.23, -14.863, 0)), False)
sketch17.addGeometry(Part.LineSegment(Vector(-15.23, -14.863, 0), Vector(6.655, -14.863, 0)), False)
sketch17.addGeometry(Part.LineSegment(Vector(6.655, -14.863, 0), Vector(6.655, -8.796356, 0)), False)
sketch17.addGeometry(Part.LineSegment(Vector(6.655, -8.796356, 0), Vector(-15.23, -8.796356, 0)), False)
sketch17.addConstraint(Sketcher.Constraint("Coincident", 0, 2, 1, 1))
sketch17.addConstraint(Sketcher.Constraint("Coincident", 1, 2, 2, 1))
sketch17.addConstraint(Sketcher.Constraint("Coincident", 2, 2, 3, 1))
sketch17.addConstraint(Sketcher.Constraint("Coincident", 3, 2, 0, 1))
sketch17.addConstraint(Sketcher.Constraint("Coincident", 4, 2, 5, 1))
sketch17.addConstraint(Sketcher.Constraint("Coincident", 5, 2, 6, 1))
sketch17.addConstraint(Sketcher.Constraint("Coincident", 6, 2, 7, 1))
sketch17.addConstraint(Sketcher.Constraint("Coincident", 7, 2, 4, 1))
sketch17.addConstraint(Sketcher.Constraint("Vertical", 0))
sketch17.addConstraint(Sketcher.Constraint("Horizontal", 1))
sketch17.addConstraint(Sketcher.Constraint("Vertical", 2))
sketch17.addConstraint(Sketcher.Constraint("Horizontal", 3))
sketch17.addConstraint(Sketcher.Constraint("Vertical", 4))
sketch17.addConstraint(Sketcher.Constraint("Horizontal", 5))
sketch17.addConstraint(Sketcher.Constraint("Vertical", 6))
sketch17.addConstraint(Sketcher.Constraint("Horizontal", 7))
sketch17.addConstraint(Sketcher.Constraint("DistanceX", 1, 1, 1, 2, 15.24))
sketch17.addConstraint(Sketcher.Constraint("DistanceX", 5, 1, 5, 2, 21.885))
sketch17.addConstraint(Sketcher.Constraint("DistanceY", 0, 2, 0, 1, 8.382))
sketch17.addConstraint(Sketcher.Constraint("DistanceY", 0, 2, -1, 1, 26.42))
sketch17.addConstraint(Sketcher.Constraint("DistanceX", 4, 2, -1, 1, 15.23))
sketch17.addConstraint(Sketcher.Constraint("DistanceX", 2, 2, 5, 2, 2.21))
sketch17.addConstraint(Sketcher.Constraint("DistanceY", 4, 2, -1, 1, 14.863))
sketch17.addConstraint(Sketcher.Constraint("DistanceY", 4, 2, 4, 1, 6.066644))
pocket9 = doc.addObject("PartDesign::Pocket", "Pocket008")
body.addObject(pocket9)
pocket9.Profile = sketch17
pocket9.Length = 5

doc.recompute()
